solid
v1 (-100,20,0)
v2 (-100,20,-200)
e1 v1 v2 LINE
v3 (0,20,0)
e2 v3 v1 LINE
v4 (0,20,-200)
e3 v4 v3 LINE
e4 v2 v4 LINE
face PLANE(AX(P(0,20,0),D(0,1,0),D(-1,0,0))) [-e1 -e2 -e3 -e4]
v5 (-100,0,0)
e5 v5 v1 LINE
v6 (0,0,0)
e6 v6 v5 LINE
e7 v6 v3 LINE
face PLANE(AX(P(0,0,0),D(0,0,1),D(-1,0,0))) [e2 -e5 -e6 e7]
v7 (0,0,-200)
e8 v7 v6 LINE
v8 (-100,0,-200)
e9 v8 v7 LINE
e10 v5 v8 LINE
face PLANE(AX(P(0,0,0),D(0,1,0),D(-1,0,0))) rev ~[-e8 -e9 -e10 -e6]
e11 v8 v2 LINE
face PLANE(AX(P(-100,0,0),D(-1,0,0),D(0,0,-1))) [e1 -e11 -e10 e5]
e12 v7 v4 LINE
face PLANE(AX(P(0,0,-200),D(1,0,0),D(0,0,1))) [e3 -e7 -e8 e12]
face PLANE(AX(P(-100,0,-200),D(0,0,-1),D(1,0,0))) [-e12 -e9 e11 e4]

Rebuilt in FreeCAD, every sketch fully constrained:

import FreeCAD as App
import Part
import Sketcher
from FreeCAD import Vector


def add_polygon(sketch, points):
    """Adds a closed chain of lines whose ends are joined by coincident constraints."""
    first, n = sketch.GeometryCount, len(points)
    for a, b in zip(points, points[1:] + points[:1]):
        sketch.addGeometry(Part.LineSegment(App.Vector(*a, 0), App.Vector(*b, 0)), False)
    for i in range(n):
        sketch.addConstraint(Sketcher.Constraint("Coincident", first + i, 2, first + (i + 1) % n, 1))

doc = App.newDocument("Part")
body = doc.addObject("PartDesign::Body", "Body")

# Sketch on XZ plane
sketch1 = body.newObject("Sketcher::SketchObject", "Sketch")
sketch1.AttachmentSupport = (doc.getObject("XZ_Plane"), [""])
sketch1.MapMode = "FlatFace"
add_polygon(sketch1, [(-100, 0), (0, 0), (0, -200), (-100, -200)])  # lines 0-3
sketch1.addConstraint(Sketcher.Constraint("Horizontal", 0))
sketch1.addConstraint(Sketcher.Constraint("Vertical", 1))
sketch1.addConstraint(Sketcher.Constraint("Horizontal", 2))
sketch1.addConstraint(Sketcher.Constraint("Vertical", 3))
sketch1.addConstraint(Sketcher.Constraint("Coincident", 0, 2, -1, 1))
sketch1.addConstraint(Sketcher.Constraint("DistanceX", 0, 1, 0, 2, 100.0))
sketch1.addConstraint(Sketcher.Constraint("DistanceY", 1, 2, 1, 1, 200.0))
pad1 = body.newObject("PartDesign::Pad", "Pad")
pad1.Profile = sketch1
pad1.Length = 20
pad1.Reversed = True

doc.recompute()
